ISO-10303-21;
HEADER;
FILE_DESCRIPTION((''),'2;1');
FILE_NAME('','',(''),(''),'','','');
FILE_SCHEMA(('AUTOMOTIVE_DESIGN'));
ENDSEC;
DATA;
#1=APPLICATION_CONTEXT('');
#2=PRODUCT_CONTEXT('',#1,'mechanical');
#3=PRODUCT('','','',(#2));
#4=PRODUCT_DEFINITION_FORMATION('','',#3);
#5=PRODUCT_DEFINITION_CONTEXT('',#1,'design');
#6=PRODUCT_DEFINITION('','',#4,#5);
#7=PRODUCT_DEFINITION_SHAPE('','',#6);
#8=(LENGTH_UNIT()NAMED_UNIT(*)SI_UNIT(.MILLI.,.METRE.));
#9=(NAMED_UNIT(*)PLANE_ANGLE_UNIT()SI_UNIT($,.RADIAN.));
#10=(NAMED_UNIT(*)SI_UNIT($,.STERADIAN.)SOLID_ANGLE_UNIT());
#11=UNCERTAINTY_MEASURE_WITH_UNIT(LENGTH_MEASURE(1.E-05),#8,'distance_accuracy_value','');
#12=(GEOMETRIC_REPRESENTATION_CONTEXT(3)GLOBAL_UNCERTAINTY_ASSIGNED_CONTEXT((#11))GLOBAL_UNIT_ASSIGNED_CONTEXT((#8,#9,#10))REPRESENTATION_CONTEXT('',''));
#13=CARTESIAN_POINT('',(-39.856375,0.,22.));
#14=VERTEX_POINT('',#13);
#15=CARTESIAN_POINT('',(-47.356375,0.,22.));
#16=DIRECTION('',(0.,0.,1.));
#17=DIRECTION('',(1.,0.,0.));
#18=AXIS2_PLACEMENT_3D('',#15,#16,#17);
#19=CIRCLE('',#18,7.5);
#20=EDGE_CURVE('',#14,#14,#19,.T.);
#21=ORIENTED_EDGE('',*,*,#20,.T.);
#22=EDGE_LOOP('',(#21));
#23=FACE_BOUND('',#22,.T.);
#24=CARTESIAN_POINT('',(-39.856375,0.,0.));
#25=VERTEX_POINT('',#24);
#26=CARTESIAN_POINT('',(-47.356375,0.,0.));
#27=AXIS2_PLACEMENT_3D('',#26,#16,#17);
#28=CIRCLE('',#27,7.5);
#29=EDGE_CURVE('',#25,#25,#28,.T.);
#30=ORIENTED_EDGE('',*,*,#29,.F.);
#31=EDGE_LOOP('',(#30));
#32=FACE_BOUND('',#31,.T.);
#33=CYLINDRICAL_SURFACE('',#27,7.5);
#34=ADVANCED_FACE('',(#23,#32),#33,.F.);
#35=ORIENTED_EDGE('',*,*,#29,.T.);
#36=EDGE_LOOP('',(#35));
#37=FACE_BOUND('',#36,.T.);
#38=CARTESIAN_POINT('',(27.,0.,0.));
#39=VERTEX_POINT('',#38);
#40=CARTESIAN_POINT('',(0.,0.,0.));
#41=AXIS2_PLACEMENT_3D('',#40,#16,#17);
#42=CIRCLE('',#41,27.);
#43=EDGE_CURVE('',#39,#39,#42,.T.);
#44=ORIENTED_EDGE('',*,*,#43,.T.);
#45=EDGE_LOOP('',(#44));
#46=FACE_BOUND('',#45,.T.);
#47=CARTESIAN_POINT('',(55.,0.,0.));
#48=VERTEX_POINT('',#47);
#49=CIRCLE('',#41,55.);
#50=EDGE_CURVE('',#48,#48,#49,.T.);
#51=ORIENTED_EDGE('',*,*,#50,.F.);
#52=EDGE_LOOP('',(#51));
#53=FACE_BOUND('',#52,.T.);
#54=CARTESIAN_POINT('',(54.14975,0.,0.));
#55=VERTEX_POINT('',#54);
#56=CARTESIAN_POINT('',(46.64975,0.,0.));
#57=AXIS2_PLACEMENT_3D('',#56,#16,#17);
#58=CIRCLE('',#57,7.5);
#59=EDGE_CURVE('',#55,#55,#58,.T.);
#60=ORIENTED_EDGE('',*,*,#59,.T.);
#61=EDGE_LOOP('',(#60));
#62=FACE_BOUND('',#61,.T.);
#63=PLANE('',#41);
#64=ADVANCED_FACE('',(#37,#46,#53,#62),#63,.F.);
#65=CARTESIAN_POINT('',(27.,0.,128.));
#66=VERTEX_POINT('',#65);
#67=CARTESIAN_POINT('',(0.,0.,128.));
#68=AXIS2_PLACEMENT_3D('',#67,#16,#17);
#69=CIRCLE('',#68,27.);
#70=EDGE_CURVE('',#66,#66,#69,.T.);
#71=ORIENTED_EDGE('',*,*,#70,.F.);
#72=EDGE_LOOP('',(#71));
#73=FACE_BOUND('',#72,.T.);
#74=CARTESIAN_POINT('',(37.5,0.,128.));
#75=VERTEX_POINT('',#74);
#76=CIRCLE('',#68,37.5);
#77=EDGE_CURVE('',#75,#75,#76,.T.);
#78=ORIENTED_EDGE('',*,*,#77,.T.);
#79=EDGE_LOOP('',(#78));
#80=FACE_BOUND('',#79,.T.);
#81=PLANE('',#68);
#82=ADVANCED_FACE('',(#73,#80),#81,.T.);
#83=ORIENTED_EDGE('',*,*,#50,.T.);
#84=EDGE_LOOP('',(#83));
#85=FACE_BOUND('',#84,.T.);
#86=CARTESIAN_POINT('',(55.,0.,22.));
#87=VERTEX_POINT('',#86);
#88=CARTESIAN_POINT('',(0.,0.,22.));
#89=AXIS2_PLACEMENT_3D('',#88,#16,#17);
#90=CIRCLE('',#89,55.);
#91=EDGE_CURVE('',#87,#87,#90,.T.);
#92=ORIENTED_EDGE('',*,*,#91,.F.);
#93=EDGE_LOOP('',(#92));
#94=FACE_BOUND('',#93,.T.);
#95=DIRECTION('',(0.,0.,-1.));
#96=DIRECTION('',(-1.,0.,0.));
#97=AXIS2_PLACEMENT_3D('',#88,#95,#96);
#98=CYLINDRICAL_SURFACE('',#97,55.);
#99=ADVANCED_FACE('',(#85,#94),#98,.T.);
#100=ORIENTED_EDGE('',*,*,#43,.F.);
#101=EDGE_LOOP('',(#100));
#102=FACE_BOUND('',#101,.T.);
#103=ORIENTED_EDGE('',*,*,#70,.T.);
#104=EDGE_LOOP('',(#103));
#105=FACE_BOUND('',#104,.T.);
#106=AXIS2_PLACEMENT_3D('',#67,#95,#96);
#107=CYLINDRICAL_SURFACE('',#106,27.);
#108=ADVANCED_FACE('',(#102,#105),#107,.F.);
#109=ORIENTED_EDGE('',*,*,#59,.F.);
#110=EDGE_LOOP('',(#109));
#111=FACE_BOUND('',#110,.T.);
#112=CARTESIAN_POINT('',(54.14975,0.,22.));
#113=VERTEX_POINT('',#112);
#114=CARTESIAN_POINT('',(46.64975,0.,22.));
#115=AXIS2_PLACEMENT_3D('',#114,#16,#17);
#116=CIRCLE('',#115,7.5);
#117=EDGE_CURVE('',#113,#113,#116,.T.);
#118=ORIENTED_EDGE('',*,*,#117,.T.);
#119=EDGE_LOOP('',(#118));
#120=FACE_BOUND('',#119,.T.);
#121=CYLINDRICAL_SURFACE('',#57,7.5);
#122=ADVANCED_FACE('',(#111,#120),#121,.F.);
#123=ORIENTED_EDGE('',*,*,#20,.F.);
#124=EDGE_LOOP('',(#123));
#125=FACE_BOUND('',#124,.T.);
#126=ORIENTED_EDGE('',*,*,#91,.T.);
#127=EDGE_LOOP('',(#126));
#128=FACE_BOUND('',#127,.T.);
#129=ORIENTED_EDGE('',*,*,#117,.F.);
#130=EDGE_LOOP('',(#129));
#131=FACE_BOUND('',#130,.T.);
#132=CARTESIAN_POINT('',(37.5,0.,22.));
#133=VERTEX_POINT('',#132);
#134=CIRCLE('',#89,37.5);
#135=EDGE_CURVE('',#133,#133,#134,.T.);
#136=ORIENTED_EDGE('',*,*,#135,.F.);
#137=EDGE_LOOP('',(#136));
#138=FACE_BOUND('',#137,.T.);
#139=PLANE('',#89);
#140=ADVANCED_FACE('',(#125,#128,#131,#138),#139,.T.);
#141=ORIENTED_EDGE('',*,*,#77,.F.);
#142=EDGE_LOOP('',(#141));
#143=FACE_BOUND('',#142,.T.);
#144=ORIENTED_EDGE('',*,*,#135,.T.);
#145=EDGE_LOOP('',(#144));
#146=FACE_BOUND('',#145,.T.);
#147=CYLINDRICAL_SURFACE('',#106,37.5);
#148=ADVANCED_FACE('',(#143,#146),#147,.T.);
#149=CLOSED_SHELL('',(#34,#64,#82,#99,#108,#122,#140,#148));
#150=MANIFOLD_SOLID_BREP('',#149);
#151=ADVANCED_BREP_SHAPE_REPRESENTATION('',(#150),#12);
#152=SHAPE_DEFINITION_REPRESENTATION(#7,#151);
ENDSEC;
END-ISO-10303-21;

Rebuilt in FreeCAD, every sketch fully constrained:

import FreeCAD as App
import Part
import Sketcher
from FreeCAD import Vector

doc = App.newDocument("Part")
body = doc.addObject("PartDesign::Body", "Body")

sketch1 = body.newObject("Sketcher::SketchObject", "Sketch")
sketch1.AttachmentSupport = (doc.getObject("XY_Plane"), [""])
sketch1.MapMode = "FlatFace"
sketch1.addGeometry(Part.Circle(Vector(0, 0, 0), Vector(0, 0, 1), 55), False)
sketch1.addConstraint([
    Sketcher.Constraint("Coincident", 0, 3, -1, 1),
    Sketcher.Constraint("Diameter", 0, 110.0),
])
pad1 = body.newObject("PartDesign::Pad", "Pad")
pad1.Profile = sketch1
pad1.Length = 22

sketch2 = body.newObject("Sketcher::SketchObject", "Sketch001")
sketch2.AttachmentSupport = (doc.getObject("XY_Plane"), [""])
sketch2.MapMode = "FlatFace"
sketch2.AttachmentOffset = App.Placement(Vector(0, 0, 22), App.Rotation())
sketch2.addGeometry([
    Part.Circle(Vector(0, 0, 0), Vector(0, 0, 1), 37.5),
    Part.Circle(Vector(0, 0, 0), Vector(0, 0, 1), 27),
], False)
sketch2.addConstraint([
    Sketcher.Constraint("Coincident", 0, 3, -1, 1),
    Sketcher.Constraint("Coincident", 1, 3, -1, 1),
    Sketcher.Constraint("Diameter", 0, 75.0),
    Sketcher.Constraint("Diameter", 1, 54.0),
])
pad2 = body.newObject("PartDesign::Pad", "Pad001")
pad2.Profile = sketch2
pad2.Length = 106

sketch3 = body.newObject("Sketcher::SketchObject", "Sketch002")
sketch3.AttachmentSupport = (doc.getObject("XY_Plane"), [""])
sketch3.MapMode = "FlatFace"
sketch3.AttachmentOffset = App.Placement(Vector(0, 0, 22), App.Rotation())
sketch3.addGeometry([
    Part.Circle(Vector(-47.356375, 0, 0), Vector(0, 0, 1), 7.5),
    Part.Circle(Vector(46.64975, 0, 0), Vector(0, 0, 1), 7.5),
], False)
sketch3.addConstraint([
    Sketcher.Constraint("Equal", 0, 1),
    Sketcher.Constraint("PointOnObject", 0, 3, -1),
    Sketcher.Constraint("PointOnObject", 1, 3, -1),
    Sketcher.Constraint("Diameter", 0, 15.0),
    Sketcher.Constraint("DistanceX", -1, 1, 1, 3, 46.64975),
    Sketcher.Constraint("DistanceX", 0, 3, -1, 1, 47.356375),
])
pocket1 = body.newObject("PartDesign::Pocket", "Pocket")
pocket1.Profile = sketch3
pocket1.Type = "ThroughAll"

sketch4 = body.newObject("Sketcher::SketchObject", "Sketch003")
sketch4.AttachmentSupport = (doc.getObject("XY_Plane"), [""])
sketch4.MapMode = "FlatFace"
sketch4.AttachmentOffset = App.Placement(Vector(0, 0, 22), App.Rotation())
sketch4.addGeometry(Part.Circle(Vector(0, 0, 0), Vector(0, 0, 1), 27), False)
sketch4.addConstraint([
    Sketcher.Constraint("Coincident", 0, 3, -1, 1),
    Sketcher.Constraint("Diameter", 0, 54.0),
])
pocket2 = body.newObject("PartDesign::Pocket", "Pocket001")
pocket2.Profile = sketch4
pocket2.Type = "ThroughAll"

doc.recompute()
